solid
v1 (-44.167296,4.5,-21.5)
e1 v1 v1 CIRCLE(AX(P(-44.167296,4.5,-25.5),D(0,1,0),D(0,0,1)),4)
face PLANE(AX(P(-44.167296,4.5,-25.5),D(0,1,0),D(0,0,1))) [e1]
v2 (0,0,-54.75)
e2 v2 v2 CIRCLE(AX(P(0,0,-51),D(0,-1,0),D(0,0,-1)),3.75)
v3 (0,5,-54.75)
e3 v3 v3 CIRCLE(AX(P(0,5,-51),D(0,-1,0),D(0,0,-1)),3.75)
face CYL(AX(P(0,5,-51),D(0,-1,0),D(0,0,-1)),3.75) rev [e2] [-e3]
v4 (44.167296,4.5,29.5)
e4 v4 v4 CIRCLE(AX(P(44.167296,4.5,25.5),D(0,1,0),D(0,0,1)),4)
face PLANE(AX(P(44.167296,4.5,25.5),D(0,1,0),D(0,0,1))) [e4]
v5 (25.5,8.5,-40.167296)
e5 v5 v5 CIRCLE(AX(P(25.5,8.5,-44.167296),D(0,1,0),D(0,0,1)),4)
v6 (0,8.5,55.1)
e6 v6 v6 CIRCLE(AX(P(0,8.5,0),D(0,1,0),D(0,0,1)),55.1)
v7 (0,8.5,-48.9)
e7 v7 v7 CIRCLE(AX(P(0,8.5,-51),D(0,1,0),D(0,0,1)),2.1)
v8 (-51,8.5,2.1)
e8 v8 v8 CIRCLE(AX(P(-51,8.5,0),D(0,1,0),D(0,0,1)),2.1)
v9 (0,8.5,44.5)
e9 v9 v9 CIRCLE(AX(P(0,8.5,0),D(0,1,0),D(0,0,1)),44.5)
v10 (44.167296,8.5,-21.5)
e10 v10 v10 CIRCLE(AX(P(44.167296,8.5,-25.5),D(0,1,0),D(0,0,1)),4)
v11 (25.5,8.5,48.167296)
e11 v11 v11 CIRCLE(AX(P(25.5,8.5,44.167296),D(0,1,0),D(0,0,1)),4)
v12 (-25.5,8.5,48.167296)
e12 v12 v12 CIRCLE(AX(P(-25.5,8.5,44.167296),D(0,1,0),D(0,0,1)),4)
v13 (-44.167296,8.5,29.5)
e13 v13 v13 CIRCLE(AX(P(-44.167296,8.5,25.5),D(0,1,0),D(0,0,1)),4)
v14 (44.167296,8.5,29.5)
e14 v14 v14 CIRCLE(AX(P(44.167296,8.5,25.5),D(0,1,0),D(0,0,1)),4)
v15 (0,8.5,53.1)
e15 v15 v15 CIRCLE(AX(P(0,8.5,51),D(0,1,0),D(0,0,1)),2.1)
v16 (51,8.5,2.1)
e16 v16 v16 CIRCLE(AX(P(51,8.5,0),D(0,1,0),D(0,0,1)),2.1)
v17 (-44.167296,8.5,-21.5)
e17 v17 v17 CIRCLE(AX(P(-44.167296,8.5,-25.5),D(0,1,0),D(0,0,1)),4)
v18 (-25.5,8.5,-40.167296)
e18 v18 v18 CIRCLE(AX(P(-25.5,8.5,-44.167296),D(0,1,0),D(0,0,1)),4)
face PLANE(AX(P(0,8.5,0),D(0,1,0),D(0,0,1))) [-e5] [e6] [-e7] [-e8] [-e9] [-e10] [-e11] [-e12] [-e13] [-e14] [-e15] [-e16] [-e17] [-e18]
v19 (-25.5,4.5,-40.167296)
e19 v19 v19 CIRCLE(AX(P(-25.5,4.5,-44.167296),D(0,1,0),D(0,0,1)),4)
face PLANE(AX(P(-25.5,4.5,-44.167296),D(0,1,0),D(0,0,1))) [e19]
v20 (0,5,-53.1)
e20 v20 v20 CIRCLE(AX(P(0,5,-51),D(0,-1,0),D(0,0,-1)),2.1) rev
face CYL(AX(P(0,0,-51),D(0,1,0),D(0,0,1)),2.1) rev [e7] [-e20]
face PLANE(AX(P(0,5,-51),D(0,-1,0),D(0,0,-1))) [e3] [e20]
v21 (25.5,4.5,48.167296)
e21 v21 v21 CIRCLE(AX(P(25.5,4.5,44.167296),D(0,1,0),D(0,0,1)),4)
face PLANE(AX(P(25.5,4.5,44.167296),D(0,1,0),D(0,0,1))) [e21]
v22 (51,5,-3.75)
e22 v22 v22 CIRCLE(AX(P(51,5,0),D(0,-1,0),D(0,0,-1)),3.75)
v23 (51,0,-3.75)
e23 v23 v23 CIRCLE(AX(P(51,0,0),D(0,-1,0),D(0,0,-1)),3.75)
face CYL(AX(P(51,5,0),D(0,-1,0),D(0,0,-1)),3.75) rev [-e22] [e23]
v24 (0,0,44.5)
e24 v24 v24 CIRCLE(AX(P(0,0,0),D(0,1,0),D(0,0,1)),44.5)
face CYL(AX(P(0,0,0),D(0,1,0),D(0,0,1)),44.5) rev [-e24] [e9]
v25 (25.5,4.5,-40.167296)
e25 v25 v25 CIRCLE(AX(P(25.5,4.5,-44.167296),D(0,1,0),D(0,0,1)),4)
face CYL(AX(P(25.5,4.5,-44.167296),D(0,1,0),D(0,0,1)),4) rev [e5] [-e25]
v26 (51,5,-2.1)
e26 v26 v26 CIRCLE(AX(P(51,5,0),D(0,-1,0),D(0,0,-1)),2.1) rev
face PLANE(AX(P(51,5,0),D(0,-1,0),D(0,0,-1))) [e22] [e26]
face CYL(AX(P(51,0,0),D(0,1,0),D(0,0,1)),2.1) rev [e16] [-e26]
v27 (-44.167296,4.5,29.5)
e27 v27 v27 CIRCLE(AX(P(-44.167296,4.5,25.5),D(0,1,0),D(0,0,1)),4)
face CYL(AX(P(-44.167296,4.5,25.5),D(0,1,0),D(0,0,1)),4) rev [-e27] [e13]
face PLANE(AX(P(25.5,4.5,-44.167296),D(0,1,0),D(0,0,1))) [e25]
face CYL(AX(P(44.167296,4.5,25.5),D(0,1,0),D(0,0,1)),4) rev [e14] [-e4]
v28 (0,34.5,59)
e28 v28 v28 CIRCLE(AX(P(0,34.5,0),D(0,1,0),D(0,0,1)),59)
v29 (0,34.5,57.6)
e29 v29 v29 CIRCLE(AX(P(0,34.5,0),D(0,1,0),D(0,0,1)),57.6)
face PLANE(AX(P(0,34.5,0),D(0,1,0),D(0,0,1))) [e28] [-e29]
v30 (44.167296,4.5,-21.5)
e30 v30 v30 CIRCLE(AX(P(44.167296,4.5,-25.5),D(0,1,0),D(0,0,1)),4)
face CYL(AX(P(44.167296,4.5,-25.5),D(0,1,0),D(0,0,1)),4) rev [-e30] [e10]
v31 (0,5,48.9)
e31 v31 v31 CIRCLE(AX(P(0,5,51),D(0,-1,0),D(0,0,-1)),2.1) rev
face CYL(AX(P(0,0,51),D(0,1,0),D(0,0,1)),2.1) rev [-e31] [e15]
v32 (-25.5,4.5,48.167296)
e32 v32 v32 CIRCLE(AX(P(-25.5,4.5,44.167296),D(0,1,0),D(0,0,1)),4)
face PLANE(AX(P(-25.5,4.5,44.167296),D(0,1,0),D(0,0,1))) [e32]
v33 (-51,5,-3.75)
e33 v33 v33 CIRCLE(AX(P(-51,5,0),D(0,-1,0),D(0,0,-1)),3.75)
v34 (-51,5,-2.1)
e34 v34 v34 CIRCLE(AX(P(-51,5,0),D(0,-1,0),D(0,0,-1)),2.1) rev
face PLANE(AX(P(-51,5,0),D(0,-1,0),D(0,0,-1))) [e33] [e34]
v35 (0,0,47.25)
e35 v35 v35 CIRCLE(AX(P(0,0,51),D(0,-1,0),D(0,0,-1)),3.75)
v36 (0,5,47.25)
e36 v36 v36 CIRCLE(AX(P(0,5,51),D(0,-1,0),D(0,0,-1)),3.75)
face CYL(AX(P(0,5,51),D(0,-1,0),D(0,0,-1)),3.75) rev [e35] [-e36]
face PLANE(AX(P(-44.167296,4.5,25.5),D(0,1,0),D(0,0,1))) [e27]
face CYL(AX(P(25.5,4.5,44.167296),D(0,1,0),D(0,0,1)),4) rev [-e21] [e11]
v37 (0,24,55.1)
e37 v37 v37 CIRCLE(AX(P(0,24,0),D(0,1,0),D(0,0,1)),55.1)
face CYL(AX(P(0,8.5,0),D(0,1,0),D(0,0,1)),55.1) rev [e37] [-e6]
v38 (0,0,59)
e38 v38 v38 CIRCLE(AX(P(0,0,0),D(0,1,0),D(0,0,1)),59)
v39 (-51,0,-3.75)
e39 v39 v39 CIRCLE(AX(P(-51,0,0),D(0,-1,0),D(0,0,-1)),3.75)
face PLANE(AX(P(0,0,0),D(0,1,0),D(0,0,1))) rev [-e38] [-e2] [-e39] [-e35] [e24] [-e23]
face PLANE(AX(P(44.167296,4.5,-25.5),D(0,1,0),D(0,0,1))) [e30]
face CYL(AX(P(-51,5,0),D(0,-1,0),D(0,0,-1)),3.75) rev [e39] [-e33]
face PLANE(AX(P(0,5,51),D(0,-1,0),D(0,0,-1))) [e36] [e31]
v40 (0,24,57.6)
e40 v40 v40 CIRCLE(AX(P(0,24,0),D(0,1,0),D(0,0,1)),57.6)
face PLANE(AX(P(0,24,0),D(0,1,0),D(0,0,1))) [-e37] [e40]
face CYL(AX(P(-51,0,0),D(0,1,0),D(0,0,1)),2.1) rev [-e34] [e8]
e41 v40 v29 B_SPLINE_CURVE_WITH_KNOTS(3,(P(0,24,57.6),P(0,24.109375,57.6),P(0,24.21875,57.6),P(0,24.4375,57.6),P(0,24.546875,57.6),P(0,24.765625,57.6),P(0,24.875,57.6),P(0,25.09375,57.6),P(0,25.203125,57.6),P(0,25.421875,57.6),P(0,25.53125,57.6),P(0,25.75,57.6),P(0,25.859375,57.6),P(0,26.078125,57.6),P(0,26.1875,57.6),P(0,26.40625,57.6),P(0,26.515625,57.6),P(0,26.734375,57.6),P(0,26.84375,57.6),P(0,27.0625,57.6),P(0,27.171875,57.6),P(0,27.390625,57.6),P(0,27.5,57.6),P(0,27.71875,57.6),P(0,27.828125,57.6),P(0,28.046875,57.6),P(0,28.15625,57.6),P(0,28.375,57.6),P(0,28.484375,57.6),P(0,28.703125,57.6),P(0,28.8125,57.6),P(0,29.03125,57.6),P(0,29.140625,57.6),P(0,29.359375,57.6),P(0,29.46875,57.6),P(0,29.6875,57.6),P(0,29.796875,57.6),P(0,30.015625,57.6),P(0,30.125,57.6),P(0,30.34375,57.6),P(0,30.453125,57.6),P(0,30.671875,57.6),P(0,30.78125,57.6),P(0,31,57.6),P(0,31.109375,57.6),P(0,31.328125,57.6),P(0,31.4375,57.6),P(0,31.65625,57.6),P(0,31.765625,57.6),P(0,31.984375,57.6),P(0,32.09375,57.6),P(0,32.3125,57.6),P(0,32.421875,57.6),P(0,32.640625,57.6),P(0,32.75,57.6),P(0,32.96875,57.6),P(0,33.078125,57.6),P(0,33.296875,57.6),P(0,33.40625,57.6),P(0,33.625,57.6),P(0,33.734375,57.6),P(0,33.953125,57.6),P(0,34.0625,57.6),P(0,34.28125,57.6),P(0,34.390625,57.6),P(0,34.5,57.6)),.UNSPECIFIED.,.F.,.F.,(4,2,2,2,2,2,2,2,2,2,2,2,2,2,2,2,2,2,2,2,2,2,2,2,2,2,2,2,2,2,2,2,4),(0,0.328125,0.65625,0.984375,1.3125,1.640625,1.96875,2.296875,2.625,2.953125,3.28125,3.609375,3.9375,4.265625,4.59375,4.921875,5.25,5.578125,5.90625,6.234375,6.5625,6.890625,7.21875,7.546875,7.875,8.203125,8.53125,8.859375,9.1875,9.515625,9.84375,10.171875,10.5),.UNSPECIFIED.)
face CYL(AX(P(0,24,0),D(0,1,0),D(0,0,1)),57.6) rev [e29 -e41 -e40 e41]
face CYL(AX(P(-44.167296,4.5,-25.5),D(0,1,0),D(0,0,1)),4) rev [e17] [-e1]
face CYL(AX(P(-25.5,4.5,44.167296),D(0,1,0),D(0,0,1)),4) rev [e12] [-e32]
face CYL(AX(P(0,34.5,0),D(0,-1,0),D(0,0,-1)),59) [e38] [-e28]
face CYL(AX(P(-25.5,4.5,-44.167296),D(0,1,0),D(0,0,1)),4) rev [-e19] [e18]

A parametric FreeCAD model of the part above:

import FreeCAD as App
import Part
import Sketcher
from FreeCAD import Vector
Q = App.Units.Quantity

doc = App.newDocument("Part")
body = doc.addObject("PartDesign::Body", "Body")

# Sketch on XZ plane
sketch1 = body.newObject("Sketcher::SketchObject", "Sketch")
sketch1.AttachmentSupport = (doc.getObject("XZ_Plane"), [""])
sketch1.MapMode = "FlatFace"
sketch1.addGeometry(Part.Circle(Vector(0, 0, 0), Vector(0, 0, 1), 59), False)
sketch1.addConstraint(Sketcher.Constraint("Coincident", 0, 3, -1, 1))
sketch1.addConstraint(Sketcher.Constraint("Diameter", 0, Q("118 mm")))
pad1 = body.newObject("PartDesign::Pad", "Pad")
pad1.Profile = sketch1
pad1.Length = 34.5
pad1.Reversed = True

# Sketch on XZ plane
sketch2 = body.newObject("Sketcher::SketchObject", "Sketch001")
sketch2.AttachmentSupport = (doc.getObject("XZ_Plane"), [""])
sketch2.MapMode = "FlatFace"
sketch2.AttachmentOffset = App.Placement(Vector(0, 0, -34.5), App.Rotation())
sketch2.addGeometry(Part.Circle(Vector(0, 0, 0), Vector(0, 0, 1), 58), False)
sketch2.addConstraint(Sketcher.Constraint("Coincident", 0, 3, -1, 1))
sketch2.addConstraint(Sketcher.Constraint("Diameter", 0, Q("115.2 mm")))
pocket1 = body.newObject("PartDesign::Pocket", "Pocket")
pocket1.Profile = sketch2
pocket1.Length = 10.5
pocket1.Reversed = True

# Sketch on XZ plane
sketch3 = body.newObject("Sketcher::SketchObject", "Sketch002")
sketch3.AttachmentSupport = (doc.getObject("XZ_Plane"), [""])
sketch3.MapMode = "FlatFace"
sketch3.AttachmentOffset = App.Placement(Vector(0, 0, -24), App.Rotation())
sketch3.addGeometry(Part.Circle(Vector(0, 0, 0), Vector(0, 0, 1), 55), False)
sketch3.addConstraint(Sketcher.Constraint("Coincident", 0, 3, -1, 1))
sketch3.addConstraint(Sketcher.Constraint("Diameter", 0, Q("110.2 mm")))
pocket2 = body.newObject("PartDesign::Pocket", "Pocket001")
pocket2.Profile = sketch3
pocket2.Length = 15.5
pocket2.Reversed = True

# Sketch on XZ plane
sketch4 = body.newObject("Sketcher::SketchObject", "Sketch003")
sketch4.AttachmentSupport = (doc.getObject("XZ_Plane"), [""])
sketch4.MapMode = "FlatFace"
sketch4.AttachmentOffset = App.Placement(Vector(0, 0, -8.5), App.Rotation())
sketch4.addGeometry(Part.Circle(Vector(0, 0, 0), Vector(0, 0, 1), 44), False)
sketch4.addConstraint(Sketcher.Constraint("Coincident", 0, 3, -1, 1))
sketch4.addConstraint(Sketcher.Constraint("Diameter", 0, Q("89 mm")))
pocket3 = body.newObject("PartDesign::Pocket", "Pocket002")
pocket3.Profile = sketch4
pocket3.Type = "ThroughAll"
pocket3.Reversed = True

# Sketch on XZ plane
sketch5 = body.newObject("Sketcher::SketchObject", "Sketch004")
sketch5.AttachmentSupport = (doc.getObject("XZ_Plane"), [""])
sketch5.MapMode = "FlatFace"
sketch5.AttachmentOffset = App.Placement(Vector(0, 0, -8.5), App.Rotation())
sketch5.addGeometry(Part.Circle(Vector(-44.2, -25.5, 0), Vector(0, 0, 1), 4), False)
sketch5.addGeometry(Part.Circle(Vector(-25.5, -44.2, 0), Vector(0, 0, 1), 4), False)
sketch5.addGeometry(Part.Circle(Vector(25.5, -44.2, 0), Vector(0, 0, 1), 4), False)
sketch5.addGeometry(Part.Circle(Vector(44.2, -25.5, 0), Vector(0, 0, 1), 4), False)
sketch5.addGeometry(Part.Circle(Vector(44.2, 25.5, 0), Vector(0, 0, 1), 4), False)
sketch5.addGeometry(Part.Circle(Vector(25.5, 44.2, 0), Vector(0, 0, 1), 4), False)
sketch5.addGeometry(Part.Circle(Vector(-25.5, 44.2, 0), Vector(0, 0, 1), 4), False)
sketch5.addGeometry(Part.Circle(Vector(-44.2, 25.5, 0), Vector(0, 0, 1), 4), False)
sketch5.addConstraint(Sketcher.Constraint("Equal", 0, 1))
sketch5.addConstraint(Sketcher.Constraint("Equal", 1, 2))
sketch5.addConstraint(Sketcher.Constraint("Equal", 2, 3))
sketch5.addConstraint(Sketcher.Constraint("Equal", 3, 4))
sketch5.addConstraint(Sketcher.Constraint("Equal", 4, 5))
sketch5.addConstraint(Sketcher.Constraint("Equal", 5, 6))
sketch5.addConstraint(Sketcher.Constraint("Equal", 6, 7))
sketch5.addConstraint(Sketcher.Constraint("Symmetric", 0, 3, 4, 3, -1, 1))
sketch5.addConstraint(Sketcher.Constraint("Symmetric", 1, 3, 5, 3, -1, 1))
sketch5.addConstraint(Sketcher.Constraint("Symmetric", 2, 3, 6, 3, -1, 1))
sketch5.addConstraint(Sketcher.Constraint("Symmetric", 3, 3, 7, 3, -1, 1))
sketch5.addConstraint(Sketcher.Constraint("Symmetric", 1, 3, 2, 3, -2))
sketch5.addConstraint(Sketcher.Constraint("Symmetric", 0, 3, 3, 3, -2))
sketch5.addConstraint(Sketcher.Constraint("Diameter", 0, Q("8 mm")))
sketch5.addConstraint(Sketcher.Constraint("DistanceX", 1, 3, 2, 3, Q("51 mm")))
sketch5.addConstraint(Sketcher.Constraint("DistanceY", 3, 3, 4, 3, Q("51 mm")))
sketch5.addConstraint(Sketcher.Constraint("DistanceX", 0, 3, 3, 3, Q("88.334591 mm")))
sketch5.addConstraint(Sketcher.Constraint("DistanceY", 2, 3, 5, 3, Q("88.334591 mm")))
pocket4 = body.newObject("PartDesign::Pocket", "Pocket003")
pocket4.Profile = sketch5
pocket4.Length = 4
pocket4.Reversed = True

# Sketch on XZ plane
sketch6 = body.newObject("Sketcher::SketchObject", "Sketch005")
sketch6.AttachmentSupport = (doc.getObject("XZ_Plane"), [""])
sketch6.MapMode = "FlatFace"
sketch6.AttachmentOffset = App.Placement(Vector(0, 0, -8.5), App.Rotation())
sketch6.addGeometry(Part.Circle(Vector(0, -51, 0), Vector(0, 0, 1), 2.1), False)
sketch6.addGeometry(Part.Circle(Vector(51, 0, 0), Vector(0, 0, 1), 2.1), False)
sketch6.addGeometry(Part.Circle(Vector(0, 51, 0), Vector(0, 0, 1), 2.1), False)
sketch6.addGeometry(Part.Circle(Vector(-51, 0, 0), Vector(0, 0, 1), 2.1), False)
sketch6.addConstraint(Sketcher.Constraint("Equal", 0, 1))
sketch6.addConstraint(Sketcher.Constraint("Equal", 1, 2))
sketch6.addConstraint(Sketcher.Constraint("Equal", 2, 3))
sketch6.addConstraint(Sketcher.Constraint("Symmetric", 0, 3, 2, 3, -1, 1))
sketch6.addConstraint(Sketcher.Constraint("Symmetric", 1, 3, 3, 3, -1, 1))
sketch6.addConstraint(Sketcher.Constraint("PointOnObject", 0, 3, -2))
sketch6.addConstraint(Sketcher.Constraint("PointOnObject", 1, 3, -1))
sketch6.addConstraint(Sketcher.Constraint("Diameter", 0, Q("4.2 mm")))
sketch6.addConstraint(Sketcher.Constraint("DistanceY", 0, 3, -1, 1, Q("51 mm")))
sketch6.addConstraint(Sketcher.Constraint("DistanceX", -1, 1, 1, 3, Q("51 mm")))
pocket5 = body.newObject("PartDesign::Pocket", "Pocket004")
pocket5.Profile = sketch6
pocket5.Type = "ThroughAll"
pocket5.Reversed = True

# Sketch on XZ plane
sketch7 = body.newObject("Sketcher::SketchObject", "Sketch006")
sketch7.AttachmentSupport = (doc.getObject("XZ_Plane"), [""])
sketch7.MapMode = "FlatFace"
sketch7.addGeometry(Part.Circle(Vector(0, 51, 0), Vector(0, 0, 1), 3.8), False)
sketch7.addGeometry(Part.Circle(Vector(51, 0, 0), Vector(0, 0, 1), 3.8), False)
sketch7.addGeometry(Part.Circle(Vector(0, -51, 0), Vector(0, 0, 1), 3.8), False)
sketch7.addGeometry(Part.Circle(Vector(-51, 0, 0), Vector(0, 0, 1), 3.8), False)
sketch7.addConstraint(Sketcher.Constraint("Equal", 0, 1))
sketch7.addConstraint(Sketcher.Constraint("Equal", 1, 2))
sketch7.addConstraint(Sketcher.Constraint("Equal", 2, 3))
sketch7.addConstraint(Sketcher.Constraint("Symmetric", 0, 3, 2, 3, -1, 1))
sketch7.addConstraint(Sketcher.Constraint("Symmetric", 1, 3, 3, 3, -1, 1))
sketch7.addConstraint(Sketcher.Constraint("PointOnObject", 0, 3, -2))
sketch7.addConstraint(Sketcher.Constraint("PointOnObject", 1, 3, -1))
sketch7.addConstraint(Sketcher.Constraint("Diameter", 0, Q("7.5 mm")))
sketch7.addConstraint(Sketcher.Constraint("DistanceY", -1, 1, 0, 3, Q("51 mm")))
sketch7.addConstraint(Sketcher.Constraint("DistanceX", -1, 1, 1, 3, Q("51 mm")))
pocket6 = body.newObject("PartDesign::Pocket", "Pocket005")
pocket6.Profile = sketch7
pocket6.Length = 5

doc.recompute()
